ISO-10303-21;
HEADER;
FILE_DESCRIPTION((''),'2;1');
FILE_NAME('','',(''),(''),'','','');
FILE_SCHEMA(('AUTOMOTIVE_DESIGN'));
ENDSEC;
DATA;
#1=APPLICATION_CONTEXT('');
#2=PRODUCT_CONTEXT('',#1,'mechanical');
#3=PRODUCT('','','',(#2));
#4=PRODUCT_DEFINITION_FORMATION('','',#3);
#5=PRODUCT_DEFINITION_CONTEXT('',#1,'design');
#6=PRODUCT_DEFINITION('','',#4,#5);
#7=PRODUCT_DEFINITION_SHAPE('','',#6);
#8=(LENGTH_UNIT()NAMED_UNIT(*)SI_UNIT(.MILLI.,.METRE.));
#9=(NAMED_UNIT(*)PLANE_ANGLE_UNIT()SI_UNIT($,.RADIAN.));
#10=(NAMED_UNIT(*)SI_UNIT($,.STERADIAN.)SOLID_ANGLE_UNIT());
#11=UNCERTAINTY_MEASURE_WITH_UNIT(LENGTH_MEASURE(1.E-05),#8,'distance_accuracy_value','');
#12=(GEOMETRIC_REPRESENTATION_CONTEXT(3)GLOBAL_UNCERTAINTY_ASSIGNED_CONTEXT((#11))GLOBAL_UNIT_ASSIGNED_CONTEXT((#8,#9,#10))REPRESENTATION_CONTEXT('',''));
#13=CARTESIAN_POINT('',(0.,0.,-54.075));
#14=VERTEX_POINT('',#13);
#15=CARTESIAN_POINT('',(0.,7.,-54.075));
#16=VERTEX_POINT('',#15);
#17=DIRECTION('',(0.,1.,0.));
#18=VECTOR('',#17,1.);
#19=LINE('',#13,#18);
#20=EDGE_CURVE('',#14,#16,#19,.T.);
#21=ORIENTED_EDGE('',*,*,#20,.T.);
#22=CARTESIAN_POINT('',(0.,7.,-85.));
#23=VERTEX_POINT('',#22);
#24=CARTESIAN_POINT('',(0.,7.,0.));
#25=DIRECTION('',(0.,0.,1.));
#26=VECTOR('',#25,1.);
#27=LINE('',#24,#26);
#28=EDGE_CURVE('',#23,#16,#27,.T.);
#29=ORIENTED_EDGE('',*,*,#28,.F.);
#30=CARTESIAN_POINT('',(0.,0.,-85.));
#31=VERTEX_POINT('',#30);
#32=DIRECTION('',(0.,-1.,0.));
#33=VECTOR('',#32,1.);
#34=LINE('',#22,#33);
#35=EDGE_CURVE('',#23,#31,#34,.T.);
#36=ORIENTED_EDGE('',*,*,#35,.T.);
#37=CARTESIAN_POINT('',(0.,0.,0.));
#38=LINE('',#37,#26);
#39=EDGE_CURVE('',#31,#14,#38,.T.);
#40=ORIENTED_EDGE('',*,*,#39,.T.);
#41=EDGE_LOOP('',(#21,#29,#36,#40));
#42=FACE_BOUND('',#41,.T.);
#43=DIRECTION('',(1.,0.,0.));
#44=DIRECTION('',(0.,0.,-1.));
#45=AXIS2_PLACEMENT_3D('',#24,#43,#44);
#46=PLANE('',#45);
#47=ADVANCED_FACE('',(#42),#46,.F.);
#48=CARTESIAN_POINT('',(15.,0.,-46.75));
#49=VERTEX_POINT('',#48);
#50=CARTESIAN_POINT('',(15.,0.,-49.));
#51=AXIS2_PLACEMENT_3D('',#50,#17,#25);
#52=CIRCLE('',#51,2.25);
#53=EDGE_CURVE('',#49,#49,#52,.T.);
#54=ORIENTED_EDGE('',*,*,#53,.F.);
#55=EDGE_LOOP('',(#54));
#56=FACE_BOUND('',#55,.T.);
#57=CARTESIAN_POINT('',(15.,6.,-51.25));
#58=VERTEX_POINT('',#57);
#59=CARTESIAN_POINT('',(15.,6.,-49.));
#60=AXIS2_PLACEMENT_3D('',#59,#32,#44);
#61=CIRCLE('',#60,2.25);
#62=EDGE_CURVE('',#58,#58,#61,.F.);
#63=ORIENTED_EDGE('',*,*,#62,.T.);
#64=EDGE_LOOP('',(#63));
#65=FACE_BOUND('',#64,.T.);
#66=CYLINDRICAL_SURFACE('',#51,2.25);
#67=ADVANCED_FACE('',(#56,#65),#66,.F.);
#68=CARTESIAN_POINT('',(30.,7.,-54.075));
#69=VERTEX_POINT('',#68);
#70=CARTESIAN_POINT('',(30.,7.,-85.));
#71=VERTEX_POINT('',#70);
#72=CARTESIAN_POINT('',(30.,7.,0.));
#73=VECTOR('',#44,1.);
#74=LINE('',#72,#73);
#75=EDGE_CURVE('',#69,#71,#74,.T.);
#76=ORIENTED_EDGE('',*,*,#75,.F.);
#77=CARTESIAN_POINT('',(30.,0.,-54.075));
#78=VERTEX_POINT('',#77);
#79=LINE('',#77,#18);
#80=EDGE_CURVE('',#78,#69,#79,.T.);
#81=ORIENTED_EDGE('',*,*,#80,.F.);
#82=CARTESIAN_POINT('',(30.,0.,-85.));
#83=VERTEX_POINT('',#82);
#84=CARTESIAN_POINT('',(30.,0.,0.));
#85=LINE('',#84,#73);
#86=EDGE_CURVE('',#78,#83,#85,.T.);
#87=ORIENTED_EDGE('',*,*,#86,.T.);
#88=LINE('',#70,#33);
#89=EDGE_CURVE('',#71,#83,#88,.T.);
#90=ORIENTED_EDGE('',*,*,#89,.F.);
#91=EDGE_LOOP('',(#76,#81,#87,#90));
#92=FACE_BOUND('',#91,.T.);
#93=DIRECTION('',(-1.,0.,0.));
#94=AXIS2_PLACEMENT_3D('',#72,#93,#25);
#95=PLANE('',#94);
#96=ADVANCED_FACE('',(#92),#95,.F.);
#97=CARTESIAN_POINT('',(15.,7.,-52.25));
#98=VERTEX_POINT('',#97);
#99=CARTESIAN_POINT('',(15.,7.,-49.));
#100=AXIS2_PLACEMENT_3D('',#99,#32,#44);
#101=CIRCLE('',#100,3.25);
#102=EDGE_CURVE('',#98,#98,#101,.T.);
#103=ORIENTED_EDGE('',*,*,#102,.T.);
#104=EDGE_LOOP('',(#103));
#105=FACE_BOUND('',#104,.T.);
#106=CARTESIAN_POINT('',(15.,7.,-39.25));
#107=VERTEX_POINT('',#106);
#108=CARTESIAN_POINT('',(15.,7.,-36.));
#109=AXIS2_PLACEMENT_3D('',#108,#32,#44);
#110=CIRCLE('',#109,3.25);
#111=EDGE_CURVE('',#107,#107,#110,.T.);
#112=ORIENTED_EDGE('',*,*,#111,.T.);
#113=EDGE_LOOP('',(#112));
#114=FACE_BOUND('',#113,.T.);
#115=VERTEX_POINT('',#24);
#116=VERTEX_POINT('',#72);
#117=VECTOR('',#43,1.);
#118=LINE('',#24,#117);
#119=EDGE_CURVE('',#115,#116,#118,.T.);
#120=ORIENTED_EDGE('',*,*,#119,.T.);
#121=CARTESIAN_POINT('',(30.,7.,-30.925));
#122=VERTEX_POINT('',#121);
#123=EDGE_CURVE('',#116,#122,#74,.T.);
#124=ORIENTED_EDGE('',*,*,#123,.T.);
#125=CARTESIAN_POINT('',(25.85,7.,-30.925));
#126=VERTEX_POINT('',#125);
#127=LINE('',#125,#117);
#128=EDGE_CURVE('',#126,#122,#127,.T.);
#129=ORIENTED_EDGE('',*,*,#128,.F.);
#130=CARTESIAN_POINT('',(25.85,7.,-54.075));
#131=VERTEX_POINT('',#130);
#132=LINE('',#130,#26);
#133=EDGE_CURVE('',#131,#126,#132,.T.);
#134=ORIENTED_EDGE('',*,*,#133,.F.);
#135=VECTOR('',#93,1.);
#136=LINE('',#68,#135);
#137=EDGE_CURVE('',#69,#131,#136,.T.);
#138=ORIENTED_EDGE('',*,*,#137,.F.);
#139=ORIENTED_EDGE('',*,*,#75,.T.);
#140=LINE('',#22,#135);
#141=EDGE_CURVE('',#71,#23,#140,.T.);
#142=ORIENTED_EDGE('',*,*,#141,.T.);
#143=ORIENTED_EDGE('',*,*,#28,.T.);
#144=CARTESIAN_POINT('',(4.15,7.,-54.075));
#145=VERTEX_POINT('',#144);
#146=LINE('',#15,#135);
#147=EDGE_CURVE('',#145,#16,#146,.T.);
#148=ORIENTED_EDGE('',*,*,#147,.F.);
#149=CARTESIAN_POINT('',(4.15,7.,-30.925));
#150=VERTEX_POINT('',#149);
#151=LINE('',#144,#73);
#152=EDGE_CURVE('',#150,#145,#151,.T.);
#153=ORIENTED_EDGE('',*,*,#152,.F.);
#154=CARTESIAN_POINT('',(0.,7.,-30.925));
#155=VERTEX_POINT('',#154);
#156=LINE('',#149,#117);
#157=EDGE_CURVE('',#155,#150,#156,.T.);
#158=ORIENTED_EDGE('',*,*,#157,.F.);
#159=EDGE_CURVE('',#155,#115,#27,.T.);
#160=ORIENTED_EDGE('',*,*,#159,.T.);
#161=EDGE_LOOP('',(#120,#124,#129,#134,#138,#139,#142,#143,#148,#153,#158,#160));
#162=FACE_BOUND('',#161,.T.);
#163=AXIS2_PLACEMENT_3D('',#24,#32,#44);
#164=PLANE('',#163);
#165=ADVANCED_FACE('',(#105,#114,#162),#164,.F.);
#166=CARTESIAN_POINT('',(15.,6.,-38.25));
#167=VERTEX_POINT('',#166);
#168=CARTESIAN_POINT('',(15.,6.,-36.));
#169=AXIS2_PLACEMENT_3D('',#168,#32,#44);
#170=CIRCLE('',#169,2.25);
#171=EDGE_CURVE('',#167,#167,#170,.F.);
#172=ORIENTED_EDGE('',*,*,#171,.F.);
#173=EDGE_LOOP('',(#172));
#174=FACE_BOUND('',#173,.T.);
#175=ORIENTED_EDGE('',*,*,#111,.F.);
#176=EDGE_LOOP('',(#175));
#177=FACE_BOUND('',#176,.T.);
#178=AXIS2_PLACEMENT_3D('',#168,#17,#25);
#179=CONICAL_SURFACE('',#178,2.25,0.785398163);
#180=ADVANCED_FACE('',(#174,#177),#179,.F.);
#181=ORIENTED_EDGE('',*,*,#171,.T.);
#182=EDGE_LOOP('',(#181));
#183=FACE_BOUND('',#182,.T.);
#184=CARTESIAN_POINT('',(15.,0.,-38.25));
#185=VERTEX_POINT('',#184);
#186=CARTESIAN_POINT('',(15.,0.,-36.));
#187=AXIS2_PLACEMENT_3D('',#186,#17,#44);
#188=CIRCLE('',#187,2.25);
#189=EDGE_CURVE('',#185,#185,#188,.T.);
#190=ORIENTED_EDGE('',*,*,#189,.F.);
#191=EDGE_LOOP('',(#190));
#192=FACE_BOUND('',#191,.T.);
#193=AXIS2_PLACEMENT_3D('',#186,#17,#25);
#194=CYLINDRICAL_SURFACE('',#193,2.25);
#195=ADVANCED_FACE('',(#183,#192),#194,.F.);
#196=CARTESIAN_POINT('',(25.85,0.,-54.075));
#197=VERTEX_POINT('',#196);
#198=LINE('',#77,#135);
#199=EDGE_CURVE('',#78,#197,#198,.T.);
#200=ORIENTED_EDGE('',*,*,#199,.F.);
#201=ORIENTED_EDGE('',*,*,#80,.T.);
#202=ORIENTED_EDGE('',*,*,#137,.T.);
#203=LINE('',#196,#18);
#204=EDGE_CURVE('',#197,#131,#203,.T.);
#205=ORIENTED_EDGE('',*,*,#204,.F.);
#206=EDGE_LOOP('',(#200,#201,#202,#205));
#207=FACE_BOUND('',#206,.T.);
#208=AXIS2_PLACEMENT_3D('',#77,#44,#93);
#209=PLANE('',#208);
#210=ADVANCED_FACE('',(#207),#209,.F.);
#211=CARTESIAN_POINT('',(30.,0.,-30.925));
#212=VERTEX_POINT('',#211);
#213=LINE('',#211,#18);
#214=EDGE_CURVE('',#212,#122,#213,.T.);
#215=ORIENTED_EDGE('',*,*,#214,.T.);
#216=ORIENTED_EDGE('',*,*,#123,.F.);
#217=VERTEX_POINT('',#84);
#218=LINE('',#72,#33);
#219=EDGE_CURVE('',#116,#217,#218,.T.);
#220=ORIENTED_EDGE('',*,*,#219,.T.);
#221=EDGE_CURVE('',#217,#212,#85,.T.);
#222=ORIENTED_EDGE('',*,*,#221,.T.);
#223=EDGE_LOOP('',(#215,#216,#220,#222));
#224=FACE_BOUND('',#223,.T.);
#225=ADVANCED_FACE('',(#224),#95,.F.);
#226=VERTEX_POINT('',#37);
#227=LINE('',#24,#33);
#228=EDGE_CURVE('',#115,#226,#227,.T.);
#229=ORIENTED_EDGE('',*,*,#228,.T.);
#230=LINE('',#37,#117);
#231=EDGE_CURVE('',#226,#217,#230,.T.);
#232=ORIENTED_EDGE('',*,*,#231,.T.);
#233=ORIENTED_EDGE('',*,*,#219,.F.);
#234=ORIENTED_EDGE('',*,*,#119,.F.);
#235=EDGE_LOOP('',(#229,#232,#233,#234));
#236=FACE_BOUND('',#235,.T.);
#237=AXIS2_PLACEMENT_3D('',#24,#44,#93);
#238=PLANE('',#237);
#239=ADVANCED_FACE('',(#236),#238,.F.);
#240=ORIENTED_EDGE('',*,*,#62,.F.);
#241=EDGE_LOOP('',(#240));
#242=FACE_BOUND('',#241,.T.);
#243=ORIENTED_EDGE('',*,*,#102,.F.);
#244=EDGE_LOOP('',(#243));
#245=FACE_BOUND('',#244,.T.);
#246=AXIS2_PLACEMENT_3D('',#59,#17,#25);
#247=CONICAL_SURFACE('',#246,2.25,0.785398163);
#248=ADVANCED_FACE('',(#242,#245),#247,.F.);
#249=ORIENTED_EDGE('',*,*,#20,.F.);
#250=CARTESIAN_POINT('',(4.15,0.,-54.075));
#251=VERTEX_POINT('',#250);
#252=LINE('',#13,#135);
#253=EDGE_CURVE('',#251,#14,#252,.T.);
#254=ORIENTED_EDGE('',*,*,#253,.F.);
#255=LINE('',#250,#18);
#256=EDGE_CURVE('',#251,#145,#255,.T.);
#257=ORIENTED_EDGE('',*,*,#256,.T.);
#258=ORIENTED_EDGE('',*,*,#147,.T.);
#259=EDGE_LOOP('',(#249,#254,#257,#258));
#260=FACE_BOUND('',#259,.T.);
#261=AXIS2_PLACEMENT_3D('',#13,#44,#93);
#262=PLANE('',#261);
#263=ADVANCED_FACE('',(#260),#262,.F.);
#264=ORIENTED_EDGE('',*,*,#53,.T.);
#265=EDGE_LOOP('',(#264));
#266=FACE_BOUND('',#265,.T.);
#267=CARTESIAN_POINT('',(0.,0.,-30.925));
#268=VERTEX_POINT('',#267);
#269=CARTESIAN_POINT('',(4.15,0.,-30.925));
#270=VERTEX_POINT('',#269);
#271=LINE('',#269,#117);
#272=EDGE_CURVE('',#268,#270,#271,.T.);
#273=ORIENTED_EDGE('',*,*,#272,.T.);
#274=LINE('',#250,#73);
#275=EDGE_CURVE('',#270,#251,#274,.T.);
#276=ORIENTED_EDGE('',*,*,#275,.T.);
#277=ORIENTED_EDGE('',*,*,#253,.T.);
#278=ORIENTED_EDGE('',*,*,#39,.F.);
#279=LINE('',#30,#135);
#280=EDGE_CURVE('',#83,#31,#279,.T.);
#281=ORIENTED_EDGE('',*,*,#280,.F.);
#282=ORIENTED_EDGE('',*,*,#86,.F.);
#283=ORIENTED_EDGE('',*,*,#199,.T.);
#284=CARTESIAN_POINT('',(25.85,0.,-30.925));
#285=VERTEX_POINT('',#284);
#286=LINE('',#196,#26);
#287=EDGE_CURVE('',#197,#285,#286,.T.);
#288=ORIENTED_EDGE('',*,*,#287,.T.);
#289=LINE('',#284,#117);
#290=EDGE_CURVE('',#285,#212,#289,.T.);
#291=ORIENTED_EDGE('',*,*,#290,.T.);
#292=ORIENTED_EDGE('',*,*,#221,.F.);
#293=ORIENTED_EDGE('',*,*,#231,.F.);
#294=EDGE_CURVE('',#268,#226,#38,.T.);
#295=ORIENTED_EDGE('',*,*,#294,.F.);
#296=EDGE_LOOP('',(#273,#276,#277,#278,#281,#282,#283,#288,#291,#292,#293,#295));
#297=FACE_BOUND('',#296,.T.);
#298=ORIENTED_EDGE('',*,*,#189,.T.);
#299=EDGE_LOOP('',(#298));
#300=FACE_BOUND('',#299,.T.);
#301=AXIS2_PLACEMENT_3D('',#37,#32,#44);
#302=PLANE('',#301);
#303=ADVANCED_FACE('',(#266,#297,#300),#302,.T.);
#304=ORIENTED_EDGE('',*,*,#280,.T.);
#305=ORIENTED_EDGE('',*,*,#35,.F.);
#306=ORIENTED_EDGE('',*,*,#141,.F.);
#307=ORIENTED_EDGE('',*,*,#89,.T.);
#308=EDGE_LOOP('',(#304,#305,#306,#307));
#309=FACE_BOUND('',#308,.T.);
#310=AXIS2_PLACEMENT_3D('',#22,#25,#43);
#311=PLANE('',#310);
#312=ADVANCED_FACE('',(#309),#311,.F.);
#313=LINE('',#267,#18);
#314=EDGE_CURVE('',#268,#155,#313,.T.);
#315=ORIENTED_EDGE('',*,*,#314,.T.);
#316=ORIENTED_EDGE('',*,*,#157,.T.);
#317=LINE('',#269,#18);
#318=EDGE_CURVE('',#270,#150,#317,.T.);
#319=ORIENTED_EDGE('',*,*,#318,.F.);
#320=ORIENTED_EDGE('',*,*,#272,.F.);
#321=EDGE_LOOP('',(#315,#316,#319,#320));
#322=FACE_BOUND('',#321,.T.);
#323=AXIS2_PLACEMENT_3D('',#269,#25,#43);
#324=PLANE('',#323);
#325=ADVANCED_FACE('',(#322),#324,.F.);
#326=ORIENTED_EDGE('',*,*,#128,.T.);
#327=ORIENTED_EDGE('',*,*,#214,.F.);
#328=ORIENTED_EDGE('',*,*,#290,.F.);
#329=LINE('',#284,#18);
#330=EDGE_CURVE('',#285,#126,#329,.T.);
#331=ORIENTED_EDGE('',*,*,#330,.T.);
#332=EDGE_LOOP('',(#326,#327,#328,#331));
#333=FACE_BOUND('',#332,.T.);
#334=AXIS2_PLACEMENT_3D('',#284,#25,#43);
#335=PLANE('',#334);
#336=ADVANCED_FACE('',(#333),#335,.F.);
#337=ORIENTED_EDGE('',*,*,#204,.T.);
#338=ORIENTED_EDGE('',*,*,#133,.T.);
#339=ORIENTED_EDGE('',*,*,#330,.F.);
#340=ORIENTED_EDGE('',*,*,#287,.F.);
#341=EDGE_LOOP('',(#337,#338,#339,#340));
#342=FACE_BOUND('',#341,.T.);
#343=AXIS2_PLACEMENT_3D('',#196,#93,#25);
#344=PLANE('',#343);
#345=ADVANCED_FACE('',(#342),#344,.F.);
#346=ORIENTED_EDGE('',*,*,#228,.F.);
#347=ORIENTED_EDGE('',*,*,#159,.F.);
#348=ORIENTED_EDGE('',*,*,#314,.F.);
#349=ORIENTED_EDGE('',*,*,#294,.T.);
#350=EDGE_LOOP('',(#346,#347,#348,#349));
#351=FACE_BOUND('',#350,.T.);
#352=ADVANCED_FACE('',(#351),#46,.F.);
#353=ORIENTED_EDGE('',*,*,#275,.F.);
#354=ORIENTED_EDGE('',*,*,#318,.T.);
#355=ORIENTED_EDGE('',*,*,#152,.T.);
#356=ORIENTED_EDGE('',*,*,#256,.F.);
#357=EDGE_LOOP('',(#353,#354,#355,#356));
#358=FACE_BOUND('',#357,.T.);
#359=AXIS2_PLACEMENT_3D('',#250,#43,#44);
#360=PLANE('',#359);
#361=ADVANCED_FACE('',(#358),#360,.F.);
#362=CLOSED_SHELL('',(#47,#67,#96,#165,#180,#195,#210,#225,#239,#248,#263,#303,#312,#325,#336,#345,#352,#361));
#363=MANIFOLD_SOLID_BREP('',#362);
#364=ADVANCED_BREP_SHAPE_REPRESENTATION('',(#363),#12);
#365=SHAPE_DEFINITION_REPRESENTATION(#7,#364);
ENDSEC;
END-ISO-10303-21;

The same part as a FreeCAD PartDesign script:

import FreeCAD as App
import Part
import Sketcher
from FreeCAD import Vector


def edges_at(feature, points):
    """Names of the edges that pass closest to the given points."""
    edges = feature.Shape.Edges
    near = lambda p: min(range(len(edges)), key=lambda i: edges[i].distToShape(Part.Vertex(*p))[0])
    return sorted({f"Edge{near(p) + 1}" for p in points})


def add_polygon(sketch, points):
    """Adds a closed chain of lines whose ends are joined by coincident constraints."""
    first, n = sketch.GeometryCount, len(points)
    for a, b in zip(points, points[1:] + points[:1]):
        sketch.addGeometry(Part.LineSegment(App.Vector(*a, 0), App.Vector(*b, 0)), False)
    for i in range(n):
        sketch.addConstraint(Sketcher.Constraint("Coincident", first + i, 2, first + (i + 1) % n, 1))

doc = App.newDocument("Part")
body = doc.addObject("PartDesign::Body", "Body")

sketch1 = doc.addObject("Sketcher::SketchObject", "Sketch")
body.addObject(sketch1)
sketch1.AttachmentSupport = (doc.XZ_Plane, [""])
sketch1.MapMode = "FlatFace"
add_polygon(sketch1, [(0, -85), (0, 0), (30, 0), (30, -85)])
sketch1.addConstraint(Sketcher.Constraint("Vertical", 0))
sketch1.addConstraint(Sketcher.Constraint("Horizontal", 1))
sketch1.addConstraint(Sketcher.Constraint("Vertical", 2))
sketch1.addConstraint(Sketcher.Constraint("Horizontal", 3))
sketch1.addConstraint(Sketcher.Constraint("Coincident", 0, 2, -1, 1))
sketch1.addConstraint(Sketcher.Constraint("DistanceX", 1, 1, 1, 2, 30.0))
sketch1.addConstraint(Sketcher.Constraint("DistanceY", 0, 1, 0, 2, 85.0))
pad1 = doc.addObject("PartDesign::Pad", "Pad")
body.addObject(pad1)
pad1.Profile = sketch1
pad1.Length = 7
pad1.Reversed = True

sketch2 = doc.addObject("Sketcher::SketchObject", "Sketch001")
body.addObject(sketch2)
sketch2.AttachmentSupport = (doc.XZ_Plane, [""])
sketch2.MapMode = "FlatFace"
sketch2.AttachmentOffset = App.Placement(Vector(0, 0, -7), App.Rotation())
add_polygon(sketch2, [(0, -54.1), (0, -30.9), (4.2, -30.9), (4.2, -54.1)])
add_polygon(sketch2, [(25.9, -54.1), (25.9, -30.9), (30, -30.9), (30, -54.1)])
sketch2.addConstraint(Sketcher.Constraint("Vertical", 0))
sketch2.addConstraint(Sketcher.Constraint("Horizontal", 1))
sketch2.addConstraint(Sketcher.Constraint("Vertical", 2))
sketch2.addConstraint(Sketcher.Constraint("Horizontal", 3))
sketch2.addConstraint(Sketcher.Constraint("Vertical", 4))
sketch2.addConstraint(Sketcher.Constraint("Horizontal", 5))
sketch2.addConstraint(Sketcher.Constraint("Vertical", 6))
sketch2.addConstraint(Sketcher.Constraint("Horizontal", 7))
sketch2.addConstraint(Sketcher.Constraint("PointOnObject", 0, 2, -2))
sketch2.addConstraint(Sketcher.Constraint("Horizontal", 1, 2, 4, 2))
sketch2.addConstraint(Sketcher.Constraint("Horizontal", 3, 2, 6, 2))
sketch2.addConstraint(Sketcher.Constraint("Equal", 3, 5))
sketch2.addConstraint(Sketcher.Constraint("DistanceX", -1, 1, 5, 2, 30.0))
sketch2.addConstraint(Sketcher.Constraint("DistanceX", 1, 1, 1, 2, 4.15))
sketch2.addConstraint(Sketcher.Constraint("DistanceY", 0, 1, 0, 2, 23.15))
sketch2.addConstraint(Sketcher.Constraint("DistanceY", 0, 2, -1, 1, 30.925))
pocket1 = doc.addObject("PartDesign::Pocket", "Pocket")
body.addObject(pocket1)
pocket1.Profile = sketch2
pocket1.Type = "ThroughAll"
pocket1.Reversed = True

sketch3 = doc.addObject("Sketcher::SketchObject", "Sketch002")
body.addObject(sketch3)
sketch3.AttachmentSupport = (doc.XZ_Plane, [""])
sketch3.MapMode = "FlatFace"
sketch3.AttachmentOffset = App.Placement(Vector(0, 0, -7), App.Rotation())
sketch3.addGeometry(Part.Circle(Vector(15, -49, 0), Vector(0, 0, 1), 2.2), False)
sketch3.addGeometry(Part.Circle(Vector(15, -36, 0), Vector(0, 0, 1), 2.2), False)
sketch3.addConstraint(Sketcher.Constraint("Equal", 0, 1))
sketch3.addConstraint(Sketcher.Constraint("Vertical", 0, 3, 1, 3))
sketch3.addConstraint(Sketcher.Constraint("Diameter", 0, 4.5))
sketch3.addConstraint(Sketcher.Constraint("DistanceX", -1, 1, 0, 3, 15.0))
sketch3.addConstraint(Sketcher.Constraint("DistanceY", 0, 3, -1, 1, 49.0))
sketch3.addConstraint(Sketcher.Constraint("DistanceY", 1, 3, -1, 1, 36.0))
pocket2 = doc.addObject("PartDesign::Pocket", "Pocket001")
body.addObject(pocket2)
pocket2.Profile = sketch3
pocket2.Type = "ThroughAll"
pocket2.Reversed = True
doc.recompute()

chamfer = doc.addObject("PartDesign::Chamfer", "Chamfer")
body.addObject(chamfer)
chamfer.Base = (pocket2, edges_at(pocket2, [(12.75, 7, -49), (12.75, 7, -36)]))
chamfer.Size = 1

doc.recompute()
